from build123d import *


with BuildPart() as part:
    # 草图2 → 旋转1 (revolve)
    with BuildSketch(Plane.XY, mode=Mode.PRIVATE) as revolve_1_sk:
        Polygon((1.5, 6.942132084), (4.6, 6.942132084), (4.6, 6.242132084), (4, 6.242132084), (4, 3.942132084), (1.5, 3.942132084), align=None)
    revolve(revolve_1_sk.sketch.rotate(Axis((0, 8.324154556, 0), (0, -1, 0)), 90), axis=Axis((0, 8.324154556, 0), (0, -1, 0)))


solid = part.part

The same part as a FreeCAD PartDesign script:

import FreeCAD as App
import Part
import Sketcher

V = App.Vector


def add_polygon(sketch, points):
    """Adds a closed chain of lines whose ends are joined by coincident constraints."""
    first, n = sketch.GeometryCount, len(points)
    for a, b in zip(points, points[1:] + points[:1]):
        sketch.addGeometry(Part.LineSegment(App.Vector(*a, 0), App.Vector(*b, 0)), False)
    for i in range(n):
        sketch.addConstraint(Sketcher.Constraint("Coincident", first + i, 2, first + (i + 1) % n, 1))

doc = App.newDocument("Part")
body = doc.addObject("PartDesign::Body", "Body")

# Sketch on XY plane
sketch1 = doc.addObject("Sketcher::SketchObject", "Sketch")
body.addObject(sketch1)
sketch1.AttachmentSupport = (doc.XY_Plane, [""])
sketch1.MapMode = "FlatFace"
add_polygon(sketch1, [(4.6, 6.9), (1.5, 6.9), (1.5, 3.9), (4, 3.9), (4, 6.2), (4.6, 6.2)])  # lines 0-5
sketch1.addConstraint([
    Sketcher.Constraint("Horizontal", 0),
    Sketcher.Constraint("Vertical", 1),
    Sketcher.Constraint("Horizontal", 2),
    Sketcher.Constraint("Vertical", 3),
    Sketcher.Constraint("Horizontal", 4),
    Sketcher.Constraint("Vertical", 5),
    Sketcher.Constraint("DistanceY", 1, 2, 1, 1, 3.0),
    Sketcher.Constraint("DistanceX", 0, 2, 0, 1, 3.1),
    Sketcher.Constraint("DistanceX", 2, 1, 2, 2, 2.5),
    Sketcher.Constraint("DistanceY", 3, 1, 3, 2, 2.3),
    Sketcher.Constraint("DistanceX", -1, 1, 2, 2, 4.0),
    Sketcher.Constraint("DistanceY", -1, 1, 0, 2, 6.942132),
])
revolution = doc.addObject("PartDesign::Revolution", "Revolution")
body.addObject(revolution)
revolution.Profile = sketch1
revolution.ReferenceAxis = (sketch1, ["V_Axis"])
revolution.Angle = 360

doc.recompute()
